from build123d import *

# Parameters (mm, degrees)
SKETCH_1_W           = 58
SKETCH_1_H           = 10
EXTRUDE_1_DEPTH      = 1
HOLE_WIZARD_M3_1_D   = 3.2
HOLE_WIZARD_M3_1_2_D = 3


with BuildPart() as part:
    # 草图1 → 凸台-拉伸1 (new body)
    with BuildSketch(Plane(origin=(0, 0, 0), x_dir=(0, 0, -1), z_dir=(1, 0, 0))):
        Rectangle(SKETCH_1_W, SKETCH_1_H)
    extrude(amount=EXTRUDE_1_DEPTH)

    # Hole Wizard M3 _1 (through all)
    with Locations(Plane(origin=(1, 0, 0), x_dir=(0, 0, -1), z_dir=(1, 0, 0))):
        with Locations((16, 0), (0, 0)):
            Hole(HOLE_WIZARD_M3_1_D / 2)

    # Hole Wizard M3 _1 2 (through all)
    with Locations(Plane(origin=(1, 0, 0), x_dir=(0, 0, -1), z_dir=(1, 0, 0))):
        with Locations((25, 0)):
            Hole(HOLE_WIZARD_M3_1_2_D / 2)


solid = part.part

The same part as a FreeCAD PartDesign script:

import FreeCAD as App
import Part
import Sketcher
Q = App.Units.Quantity

doc = App.newDocument("Part")
body = doc.addObject("PartDesign::Body", "Body")

# Sketch on YZ plane
sketch1 = body.newObject("Sketcher::SketchObject", "Sketch")
sketch1.AttachmentSupport = (doc.getObject("YZ_Plane"), [""])
sketch1.MapMode = "FlatFace"
sketch1.addGeometry([
    Part.LineSegment(App.Vector(5, 29, 0), App.Vector(-5, 29, 0)),
    Part.LineSegment(App.Vector(-5, 29, 0), App.Vector(-5, -29, 0)),
    Part.LineSegment(App.Vector(-5, -29, 0), App.Vector(5, -29, 0)),
    Part.LineSegment(App.Vector(5, -29, 0), App.Vector(5, 29, 0)),
], False)
sketch1.addConstraint([
    Sketcher.Constraint("Coincident", 0, 2, 1, 1),
    Sketcher.Constraint("Coincident", 1, 2, 2, 1),
    Sketcher.Constraint("Coincident", 2, 2, 3, 1),
    Sketcher.Constraint("Coincident", 3, 2, 0, 1),
    Sketcher.Constraint("Horizontal", 0),
    Sketcher.Constraint("Vertical", 1),
    Sketcher.Constraint("Horizontal", 2),
    Sketcher.Constraint("Vertical", 3),
    Sketcher.Constraint("Symmetric", 0, 2, 2, 2, -1, 1),
    Sketcher.Constraint("DistanceX", 0, 2, 0, 1, Q("10 mm")),
    Sketcher.Constraint("DistanceY", 1, 2, 1, 1, Q("58 mm")),
])
pad1 = body.newObject("PartDesign::Pad", "Pad")
pad1.Profile = sketch1
pad1.Length = 1

# Sketch on YZ plane
sketch2 = body.newObject("Sketcher::SketchObject", "Sketch001")
sketch2.AttachmentSupport = (doc.getObject("YZ_Plane"), [""])
sketch2.MapMode = "FlatFace"
sketch2.AttachmentOffset = App.Placement(App.Vector(0, 0, 1), App.Rotation())
sketch2.addGeometry([
    Part.Circle(App.Vector(0, -16, 0), App.Vector(0, 0, 1), 1.6),
    Part.Circle(App.Vector(0, 0, 0), App.Vector(0, 0, 1), 1.6),
], False)
sketch2.addConstraint([
    Sketcher.Constraint("Coincident", 1, 3, -1, 1),
    Sketcher.Constraint("Equal", 0, 1),
    Sketcher.Constraint("PointOnObject", 0, 3, -2),
    Sketcher.Constraint("Diameter", 0, Q("3.2 mm")),
    Sketcher.Constraint("DistanceY", 0, 3, -1, 1, Q("16 mm")),
])
doc.recompute()
hole = body.newObject("PartDesign::Hole", "Hole")
hole.Profile = sketch2
hole.ThreadType = "None"
hole.Diameter = 3.2
hole.DepthType = "ThroughAll"

# Sketch on YZ plane
sketch3 = body.newObject("Sketcher::SketchObject", "Sketch002")
sketch3.AttachmentSupport = (doc.getObject("YZ_Plane"), [""])
sketch3.MapMode = "FlatFace"
sketch3.AttachmentOffset = App.Placement(App.Vector(0, 0, 1), App.Rotation())
sketch3.addGeometry(Part.Circle(App.Vector(0, -25, 0), App.Vector(0, 0, 1), 1.5), False)
sketch3.addConstraint([
    Sketcher.Constraint("PointOnObject", 0, 3, -2),
    Sketcher.Constraint("Diameter", 0, Q("3 mm")),
    Sketcher.Constraint("DistanceY", 0, 3, -1, 1, Q("25 mm")),
])
doc.recompute()
hole2 = body.newObject("PartDesign::Hole", "Hole001")
hole2.Profile = sketch3
hole2.ThreadType = "None"
hole2.Diameter = 3
hole2.DepthType = "ThroughAll"

doc.recompute()
